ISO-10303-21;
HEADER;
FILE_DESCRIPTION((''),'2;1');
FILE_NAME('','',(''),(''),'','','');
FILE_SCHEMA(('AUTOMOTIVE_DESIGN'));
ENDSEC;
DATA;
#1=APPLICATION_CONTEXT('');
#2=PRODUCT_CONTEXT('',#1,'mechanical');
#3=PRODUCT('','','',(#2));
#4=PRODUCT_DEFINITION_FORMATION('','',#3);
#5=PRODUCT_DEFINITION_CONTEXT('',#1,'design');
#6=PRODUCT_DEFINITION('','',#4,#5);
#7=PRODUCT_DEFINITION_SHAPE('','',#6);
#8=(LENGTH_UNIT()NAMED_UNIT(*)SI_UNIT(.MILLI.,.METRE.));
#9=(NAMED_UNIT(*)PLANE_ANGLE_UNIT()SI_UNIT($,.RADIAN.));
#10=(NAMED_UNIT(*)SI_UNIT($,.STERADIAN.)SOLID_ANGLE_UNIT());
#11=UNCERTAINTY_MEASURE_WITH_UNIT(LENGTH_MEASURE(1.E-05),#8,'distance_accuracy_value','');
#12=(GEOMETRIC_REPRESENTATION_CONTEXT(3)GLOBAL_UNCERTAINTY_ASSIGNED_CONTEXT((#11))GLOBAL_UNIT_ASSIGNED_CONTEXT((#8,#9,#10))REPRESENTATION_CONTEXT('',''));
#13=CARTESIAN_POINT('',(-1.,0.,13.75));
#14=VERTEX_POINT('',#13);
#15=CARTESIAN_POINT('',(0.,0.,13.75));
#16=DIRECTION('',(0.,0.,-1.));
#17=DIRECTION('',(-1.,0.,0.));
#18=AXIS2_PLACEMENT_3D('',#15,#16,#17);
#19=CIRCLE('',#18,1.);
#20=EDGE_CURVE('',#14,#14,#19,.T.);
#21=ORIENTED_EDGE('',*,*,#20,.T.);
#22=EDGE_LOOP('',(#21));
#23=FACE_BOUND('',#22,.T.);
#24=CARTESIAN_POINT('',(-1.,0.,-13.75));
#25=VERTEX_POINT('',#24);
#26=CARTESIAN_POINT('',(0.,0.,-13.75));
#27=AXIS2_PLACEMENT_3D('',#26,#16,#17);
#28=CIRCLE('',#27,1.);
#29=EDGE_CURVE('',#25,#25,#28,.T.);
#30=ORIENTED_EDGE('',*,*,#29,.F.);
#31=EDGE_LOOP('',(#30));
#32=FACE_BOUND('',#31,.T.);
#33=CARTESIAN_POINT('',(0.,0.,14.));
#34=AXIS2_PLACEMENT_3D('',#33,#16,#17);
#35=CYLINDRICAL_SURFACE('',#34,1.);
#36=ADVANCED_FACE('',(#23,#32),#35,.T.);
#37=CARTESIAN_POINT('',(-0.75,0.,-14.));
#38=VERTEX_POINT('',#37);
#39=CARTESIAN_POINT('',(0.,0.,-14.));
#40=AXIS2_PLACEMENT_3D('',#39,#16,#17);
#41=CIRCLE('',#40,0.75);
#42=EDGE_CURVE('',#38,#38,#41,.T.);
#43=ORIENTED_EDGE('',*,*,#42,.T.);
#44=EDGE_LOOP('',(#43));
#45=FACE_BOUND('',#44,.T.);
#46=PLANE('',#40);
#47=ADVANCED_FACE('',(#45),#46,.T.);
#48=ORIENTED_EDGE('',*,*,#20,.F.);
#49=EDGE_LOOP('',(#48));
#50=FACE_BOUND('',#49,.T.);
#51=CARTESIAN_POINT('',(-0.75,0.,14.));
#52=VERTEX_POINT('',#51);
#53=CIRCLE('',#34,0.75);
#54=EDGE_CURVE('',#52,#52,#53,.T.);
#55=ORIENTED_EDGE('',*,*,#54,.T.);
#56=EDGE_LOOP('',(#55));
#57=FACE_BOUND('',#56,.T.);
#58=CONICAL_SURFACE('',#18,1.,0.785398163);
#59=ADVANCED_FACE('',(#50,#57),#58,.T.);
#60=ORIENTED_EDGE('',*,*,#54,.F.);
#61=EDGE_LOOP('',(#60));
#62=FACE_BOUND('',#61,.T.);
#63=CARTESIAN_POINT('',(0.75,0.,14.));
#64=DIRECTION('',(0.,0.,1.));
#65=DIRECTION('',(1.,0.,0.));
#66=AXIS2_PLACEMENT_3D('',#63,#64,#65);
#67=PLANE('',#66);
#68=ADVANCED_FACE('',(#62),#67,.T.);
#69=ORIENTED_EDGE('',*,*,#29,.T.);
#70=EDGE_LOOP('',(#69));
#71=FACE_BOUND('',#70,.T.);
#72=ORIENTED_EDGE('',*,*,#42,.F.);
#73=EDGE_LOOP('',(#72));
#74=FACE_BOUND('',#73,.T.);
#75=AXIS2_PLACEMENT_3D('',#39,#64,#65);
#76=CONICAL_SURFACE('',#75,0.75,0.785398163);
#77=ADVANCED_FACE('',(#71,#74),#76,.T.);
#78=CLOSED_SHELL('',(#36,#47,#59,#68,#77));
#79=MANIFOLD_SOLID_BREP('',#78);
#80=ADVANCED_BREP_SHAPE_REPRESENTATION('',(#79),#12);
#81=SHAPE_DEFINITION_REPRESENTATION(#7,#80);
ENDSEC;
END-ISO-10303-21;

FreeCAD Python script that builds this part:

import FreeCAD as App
import Part
import Sketcher

V = App.Vector
Q = App.Units.Quantity


def add_polygon(sketch, points):
    """Adds a closed chain of lines whose ends are joined by coincident constraints."""
    first, n = sketch.GeometryCount, len(points)
    for a, b in zip(points, points[1:] + points[:1]):
        sketch.addGeometry(Part.LineSegment(App.Vector(*a, 0), App.Vector(*b, 0)), False)
    for i in range(n):
        sketch.addConstraint(Sketcher.Constraint("Coincident", first + i, 2, first + (i + 1) % n, 1))

doc = App.newDocument("Part")
params = doc.addObject("Spreadsheet::Sheet", "Params")
for row, (alias, value) in enumerate([
    ("sketch1_height", "28 mm"),
    ("sketch1_height2", "27.5 mm"),
    ("revolution_angle", "360 deg"),
], start=1):
    params.set(f"A{row}", alias)
    params.set(f"B{row}", "=" + value)
    params.setAlias(f"B{row}", alias)

body = doc.addObject("PartDesign::Body", "Body")

# Sketch on XZ plane
sketch1 = body.newObject("Sketcher::SketchObject", "Sketch")
sketch1.AttachmentSupport = (doc.getObject("XZ_Plane"), [""])
sketch1.MapMode = "FlatFace"
add_polygon(sketch1, [(0.75, 14), (0, 14), (0, -14), (0.75, -14), (1, -13.75), (1, 13.75)])  # lines 0-5
sketch1.addConstraint(Sketcher.Constraint("Horizontal", 0))
sketch1.addConstraint(Sketcher.Constraint("Vertical", 1))
sketch1.addConstraint(Sketcher.Constraint("Horizontal", 2))
sketch1.addConstraint(Sketcher.Constraint("Vertical", 4))
sketch1.addConstraint(Sketcher.Constraint("Symmetric", 0, 2, 1, 2, -1, 1))
sketch1.addConstraint(Sketcher.Constraint("Perpendicular", 3, 5))
sketch1.addConstraint(Sketcher.Constraint("Vertical", 2, 2, 5, 2))
sketch1.addConstraint(Sketcher.Constraint("Equal", 3, 5))
sketch1.addConstraint(Sketcher.Constraint("DistanceY", 1, 2, 1, 1, Q("28 mm")))
sketch1.addConstraint(Sketcher.Constraint("DistanceY", 4, 1, 4, 2, Q("27.5 mm")))
sketch1.addConstraint(Sketcher.Constraint("DistanceX", -1, 1, 3, 2, Q("1 mm")))
sketch1.setExpression("Constraints[14]", "Params.sketch1_height")
sketch1.setExpression("Constraints[15]", "Params.sketch1_height2")
revolution = body.newObject("PartDesign::Revolution", "Revolution")
revolution.Profile = sketch1
revolution.ReferenceAxis = (sketch1, ["V_Axis"])
revolution.setExpression("Angle", "Params.revolution_angle")

doc.recompute()
